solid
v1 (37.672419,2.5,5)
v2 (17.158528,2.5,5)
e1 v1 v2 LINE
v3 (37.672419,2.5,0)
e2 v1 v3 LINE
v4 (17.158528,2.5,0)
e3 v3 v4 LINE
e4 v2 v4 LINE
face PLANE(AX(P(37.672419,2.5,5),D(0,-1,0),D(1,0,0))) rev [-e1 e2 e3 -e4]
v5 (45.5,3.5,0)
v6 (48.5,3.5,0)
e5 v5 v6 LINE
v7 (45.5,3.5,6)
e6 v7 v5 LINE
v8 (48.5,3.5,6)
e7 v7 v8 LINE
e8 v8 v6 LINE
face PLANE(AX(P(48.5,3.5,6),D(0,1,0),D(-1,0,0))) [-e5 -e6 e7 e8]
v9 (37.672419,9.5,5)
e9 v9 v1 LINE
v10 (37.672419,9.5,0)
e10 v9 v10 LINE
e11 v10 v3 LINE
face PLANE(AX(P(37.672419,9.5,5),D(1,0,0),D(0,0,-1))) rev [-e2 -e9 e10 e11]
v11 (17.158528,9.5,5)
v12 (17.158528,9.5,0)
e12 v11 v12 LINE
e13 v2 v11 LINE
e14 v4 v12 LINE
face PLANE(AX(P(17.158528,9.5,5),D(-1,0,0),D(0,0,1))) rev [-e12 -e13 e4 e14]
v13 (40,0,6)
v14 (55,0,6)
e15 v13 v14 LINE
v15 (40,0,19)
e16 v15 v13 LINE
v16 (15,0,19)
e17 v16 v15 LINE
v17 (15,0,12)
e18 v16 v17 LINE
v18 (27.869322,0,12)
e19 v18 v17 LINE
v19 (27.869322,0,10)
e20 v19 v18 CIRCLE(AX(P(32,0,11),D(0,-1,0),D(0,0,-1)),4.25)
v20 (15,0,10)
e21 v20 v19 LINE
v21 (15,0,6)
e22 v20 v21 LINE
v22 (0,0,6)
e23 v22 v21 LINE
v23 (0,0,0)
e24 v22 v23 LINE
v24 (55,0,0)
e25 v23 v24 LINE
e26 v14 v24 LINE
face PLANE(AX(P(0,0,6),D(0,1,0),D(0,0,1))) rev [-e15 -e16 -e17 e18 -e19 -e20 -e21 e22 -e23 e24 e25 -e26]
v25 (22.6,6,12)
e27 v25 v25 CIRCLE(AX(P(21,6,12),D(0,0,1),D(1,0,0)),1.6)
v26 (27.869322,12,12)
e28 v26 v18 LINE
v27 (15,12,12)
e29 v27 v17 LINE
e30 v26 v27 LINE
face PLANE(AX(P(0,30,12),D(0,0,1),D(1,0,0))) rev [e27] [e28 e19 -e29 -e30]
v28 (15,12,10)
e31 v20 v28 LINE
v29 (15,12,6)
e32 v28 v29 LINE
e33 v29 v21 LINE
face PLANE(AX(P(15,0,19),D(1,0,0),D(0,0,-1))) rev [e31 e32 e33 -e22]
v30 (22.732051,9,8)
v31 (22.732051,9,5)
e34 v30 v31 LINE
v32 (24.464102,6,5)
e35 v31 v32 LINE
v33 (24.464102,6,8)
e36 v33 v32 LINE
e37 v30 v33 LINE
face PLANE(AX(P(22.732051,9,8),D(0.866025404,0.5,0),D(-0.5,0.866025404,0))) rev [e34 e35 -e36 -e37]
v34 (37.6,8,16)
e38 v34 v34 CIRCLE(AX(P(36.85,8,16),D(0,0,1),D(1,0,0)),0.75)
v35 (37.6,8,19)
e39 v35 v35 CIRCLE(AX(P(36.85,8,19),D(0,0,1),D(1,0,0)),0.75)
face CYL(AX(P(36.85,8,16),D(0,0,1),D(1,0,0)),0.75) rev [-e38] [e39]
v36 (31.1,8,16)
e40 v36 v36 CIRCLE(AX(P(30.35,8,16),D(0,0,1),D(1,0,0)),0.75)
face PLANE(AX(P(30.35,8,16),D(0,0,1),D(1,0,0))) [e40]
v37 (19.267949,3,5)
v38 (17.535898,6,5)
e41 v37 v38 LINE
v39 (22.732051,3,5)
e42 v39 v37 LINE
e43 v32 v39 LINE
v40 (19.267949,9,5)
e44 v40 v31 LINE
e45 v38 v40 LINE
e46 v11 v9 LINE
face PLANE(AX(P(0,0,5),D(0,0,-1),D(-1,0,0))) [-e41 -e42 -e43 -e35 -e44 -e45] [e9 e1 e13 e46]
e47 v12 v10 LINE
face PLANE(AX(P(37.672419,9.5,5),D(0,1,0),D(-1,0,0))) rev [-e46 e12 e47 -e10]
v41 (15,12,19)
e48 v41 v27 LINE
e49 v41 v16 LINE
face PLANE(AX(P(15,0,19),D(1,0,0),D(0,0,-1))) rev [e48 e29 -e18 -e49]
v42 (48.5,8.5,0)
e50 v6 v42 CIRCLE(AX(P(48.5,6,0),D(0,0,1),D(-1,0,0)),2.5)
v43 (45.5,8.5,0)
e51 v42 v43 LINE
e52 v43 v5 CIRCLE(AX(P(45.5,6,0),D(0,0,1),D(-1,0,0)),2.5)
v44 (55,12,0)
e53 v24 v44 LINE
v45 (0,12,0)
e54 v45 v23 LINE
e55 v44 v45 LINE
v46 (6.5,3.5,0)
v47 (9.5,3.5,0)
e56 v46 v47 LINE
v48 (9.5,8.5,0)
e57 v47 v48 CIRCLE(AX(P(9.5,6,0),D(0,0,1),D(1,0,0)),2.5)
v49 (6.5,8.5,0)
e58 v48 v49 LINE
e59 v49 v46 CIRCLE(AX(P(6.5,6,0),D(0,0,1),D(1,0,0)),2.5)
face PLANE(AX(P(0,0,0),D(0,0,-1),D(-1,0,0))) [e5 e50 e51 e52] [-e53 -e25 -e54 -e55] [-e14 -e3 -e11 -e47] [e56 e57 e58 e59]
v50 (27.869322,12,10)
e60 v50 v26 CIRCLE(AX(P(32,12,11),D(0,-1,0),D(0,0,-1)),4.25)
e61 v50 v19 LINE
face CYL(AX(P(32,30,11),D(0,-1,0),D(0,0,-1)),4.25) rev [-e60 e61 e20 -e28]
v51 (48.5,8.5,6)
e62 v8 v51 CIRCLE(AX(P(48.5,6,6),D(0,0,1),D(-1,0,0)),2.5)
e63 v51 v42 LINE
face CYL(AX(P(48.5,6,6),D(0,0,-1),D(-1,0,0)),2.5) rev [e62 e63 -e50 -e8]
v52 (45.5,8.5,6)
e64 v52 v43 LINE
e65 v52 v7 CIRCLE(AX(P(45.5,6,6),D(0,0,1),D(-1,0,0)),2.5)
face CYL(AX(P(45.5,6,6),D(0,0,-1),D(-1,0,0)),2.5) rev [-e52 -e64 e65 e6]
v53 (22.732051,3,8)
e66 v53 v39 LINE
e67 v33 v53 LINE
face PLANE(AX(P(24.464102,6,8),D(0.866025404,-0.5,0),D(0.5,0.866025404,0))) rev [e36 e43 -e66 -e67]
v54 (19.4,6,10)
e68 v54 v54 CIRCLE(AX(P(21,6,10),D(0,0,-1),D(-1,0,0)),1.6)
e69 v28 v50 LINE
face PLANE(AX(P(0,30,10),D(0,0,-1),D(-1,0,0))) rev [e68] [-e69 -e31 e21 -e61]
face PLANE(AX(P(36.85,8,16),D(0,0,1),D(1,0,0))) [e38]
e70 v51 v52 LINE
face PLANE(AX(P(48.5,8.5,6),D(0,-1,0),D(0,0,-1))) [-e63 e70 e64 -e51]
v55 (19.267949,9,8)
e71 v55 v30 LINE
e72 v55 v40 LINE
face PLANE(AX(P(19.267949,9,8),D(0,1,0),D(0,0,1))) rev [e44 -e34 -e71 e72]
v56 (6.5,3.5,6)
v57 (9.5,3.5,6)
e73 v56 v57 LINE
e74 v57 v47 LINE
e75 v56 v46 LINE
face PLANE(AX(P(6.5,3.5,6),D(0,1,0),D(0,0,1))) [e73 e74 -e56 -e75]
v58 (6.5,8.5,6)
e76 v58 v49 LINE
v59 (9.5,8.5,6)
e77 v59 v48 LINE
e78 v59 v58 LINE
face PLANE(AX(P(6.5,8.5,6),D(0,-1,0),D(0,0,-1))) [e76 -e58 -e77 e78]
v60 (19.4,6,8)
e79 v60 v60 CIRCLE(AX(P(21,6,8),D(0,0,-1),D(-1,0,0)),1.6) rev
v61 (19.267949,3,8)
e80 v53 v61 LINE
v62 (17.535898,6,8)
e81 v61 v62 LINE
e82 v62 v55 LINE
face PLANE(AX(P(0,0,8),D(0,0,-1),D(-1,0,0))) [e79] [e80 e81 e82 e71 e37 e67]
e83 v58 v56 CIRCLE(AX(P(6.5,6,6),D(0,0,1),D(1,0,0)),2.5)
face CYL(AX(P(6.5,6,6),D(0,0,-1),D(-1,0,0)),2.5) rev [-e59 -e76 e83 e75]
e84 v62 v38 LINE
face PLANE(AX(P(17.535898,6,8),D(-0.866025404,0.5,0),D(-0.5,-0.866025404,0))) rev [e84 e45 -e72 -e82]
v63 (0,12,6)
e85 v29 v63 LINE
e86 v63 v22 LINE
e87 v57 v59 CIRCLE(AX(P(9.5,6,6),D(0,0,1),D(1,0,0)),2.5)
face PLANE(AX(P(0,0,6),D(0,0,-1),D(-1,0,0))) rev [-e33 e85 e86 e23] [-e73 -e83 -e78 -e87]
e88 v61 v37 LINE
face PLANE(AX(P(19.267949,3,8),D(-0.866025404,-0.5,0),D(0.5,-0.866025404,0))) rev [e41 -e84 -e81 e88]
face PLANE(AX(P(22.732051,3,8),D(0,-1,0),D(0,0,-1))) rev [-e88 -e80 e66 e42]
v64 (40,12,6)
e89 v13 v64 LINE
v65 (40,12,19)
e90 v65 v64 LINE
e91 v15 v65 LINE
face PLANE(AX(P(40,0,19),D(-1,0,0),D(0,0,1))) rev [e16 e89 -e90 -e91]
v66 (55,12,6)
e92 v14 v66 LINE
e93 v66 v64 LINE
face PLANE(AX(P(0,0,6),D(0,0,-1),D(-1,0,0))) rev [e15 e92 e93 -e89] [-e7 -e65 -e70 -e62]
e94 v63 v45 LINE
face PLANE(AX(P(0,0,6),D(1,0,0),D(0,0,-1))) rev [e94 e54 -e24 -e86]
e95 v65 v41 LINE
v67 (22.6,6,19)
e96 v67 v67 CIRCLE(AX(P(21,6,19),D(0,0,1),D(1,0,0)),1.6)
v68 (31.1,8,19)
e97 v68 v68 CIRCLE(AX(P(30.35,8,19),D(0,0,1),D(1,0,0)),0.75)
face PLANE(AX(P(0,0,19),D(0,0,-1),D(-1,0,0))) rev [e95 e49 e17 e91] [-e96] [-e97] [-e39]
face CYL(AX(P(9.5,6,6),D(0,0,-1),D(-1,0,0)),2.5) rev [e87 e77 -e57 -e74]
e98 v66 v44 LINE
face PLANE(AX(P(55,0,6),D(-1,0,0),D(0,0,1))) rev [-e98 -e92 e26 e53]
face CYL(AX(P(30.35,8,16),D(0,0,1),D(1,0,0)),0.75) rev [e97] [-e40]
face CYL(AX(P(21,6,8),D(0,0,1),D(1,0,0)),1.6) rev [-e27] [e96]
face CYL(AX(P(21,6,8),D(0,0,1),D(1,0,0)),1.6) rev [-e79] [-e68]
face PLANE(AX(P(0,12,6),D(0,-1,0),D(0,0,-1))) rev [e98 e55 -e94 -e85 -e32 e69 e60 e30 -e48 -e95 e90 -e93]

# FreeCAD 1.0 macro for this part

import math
import FreeCAD as App
import Part
import Sketcher
from FreeCAD import Vector
Q = App.Units.Quantity

doc = App.newDocument("Part")
params = doc.addObject("Spreadsheet::Sheet", "Params")
for row, (alias, value) in enumerate([
    ("sketch1_radius", "2.5 mm"),
    ("sketch1_width", "55 mm"),
    ("sketch1_width2", "3 mm"),
    ("sketch1_height", "12 mm"),
    ("pad1_length", "6 mm"),
    ("sketch2_width", "25 mm"),
    ("sketch2_height", "12 mm"),
    ("pad2_length", "13 mm"),
    ("sketch3_height", "2 mm"),
    ("sketch3_radius", "4.25 mm"),
    ("pocket1_length", "30 mm"),
    ("sketch4_height", "7 mm"),
    ("pocket2_length", "5 mm"),
    ("sketch5_diameter", "3.2 mm"),
    ("pocket3_length", "11 mm"),
    ("pocket4_length", "3 mm"),
    ("sketch7_diameter", "1.5 mm"),
    ("pocket5_length", "3 mm"),
], start=1):
    params.set(f"A{row}", alias)
    params.set(f"B{row}", "=" + value)
    params.setAlias(f"B{row}", alias)

body = doc.addObject("PartDesign::Body", "Body")

sketch1 = body.newObject("Sketcher::SketchObject", "Sketch")
sketch1.AttachmentSupport = (doc.getObject("XY_Plane"), [""])
sketch1.MapMode = "FlatFace"
sketch1.addGeometry(Part.LineSegment(Vector(0, 12, 0), Vector(0, 0, 0)), False)
sketch1.addGeometry(Part.LineSegment(Vector(0, 0, 0), Vector(55, 0, 0)), False)
sketch1.addGeometry(Part.LineSegment(Vector(55, 0, 0), Vector(55, 12, 0)), False)
sketch1.addGeometry(Part.LineSegment(Vector(55, 12, 0), Vector(0, 12, 0)), False)
sketch1.addGeometry(Part.ArcOfCircle(Part.Circle(Vector(6.5, 6, 0), Vector(0, 0, 1), 2.5), math.radians(90), math.radians(270)), False)
sketch1.addGeometry(Part.LineSegment(Vector(6.5, 8.5, 0), Vector(9.5, 8.5, 0)), False)
sketch1.addGeometry(Part.ArcOfCircle(Part.Circle(Vector(9.5, 6, 0), Vector(0, 0, 1), 2.5), math.radians(-90), math.radians(90)), False)
sketch1.addGeometry(Part.LineSegment(Vector(9.5, 3.5, 0), Vector(6.5, 3.5, 0)), False)
sketch1.addGeometry(Part.LineSegment(Vector(45.5, 8.5, 0), Vector(48.5, 8.5, 0)), False)
sketch1.addGeometry(Part.ArcOfCircle(Part.Circle(Vector(48.5, 6, 0), Vector(0, 0, 1), 2.5), math.radians(-90), math.radians(90)), False)
sketch1.addGeometry(Part.LineSegment(Vector(48.5, 3.5, 0), Vector(45.5, 3.5, 0)), False)
sketch1.addGeometry(Part.ArcOfCircle(Part.Circle(Vector(45.5, 6, 0), Vector(0, 0, 1), 2.5), math.radians(90), math.radians(270)), False)
sketch1.addConstraint(Sketcher.Constraint("Coincident", 0, 2, 1, 1))
sketch1.addConstraint(Sketcher.Constraint("Coincident", 1, 2, 2, 1))
sketch1.addConstraint(Sketcher.Constraint("Coincident", 2, 2, 3, 1))
sketch1.addConstraint(Sketcher.Constraint("Coincident", 3, 2, 0, 1))
sketch1.addConstraint(Sketcher.Constraint("Tangent", 4, 1, 5, 1))
sketch1.addConstraint(Sketcher.Constraint("Tangent", 5, 2, 6, 2))
sketch1.addConstraint(Sketcher.Constraint("Tangent", 6, 1, 7, 1))
sketch1.addConstraint(Sketcher.Constraint("Tangent", 7, 2, 4, 2))
sketch1.addConstraint(Sketcher.Constraint("Tangent", 8, 2, 9, 2))
sketch1.addConstraint(Sketcher.Constraint("Tangent", 9, 1, 10, 1))
sketch1.addConstraint(Sketcher.Constraint("Tangent", 10, 2, 11, 2))
sketch1.addConstraint(Sketcher.Constraint("Tangent", 11, 1, 8, 1))
sketch1.addConstraint(Sketcher.Constraint("Vertical", 0))
sketch1.addConstraint(Sketcher.Constraint("Horizontal", 1))
sketch1.addConstraint(Sketcher.Constraint("Vertical", 2))
sketch1.addConstraint(Sketcher.Constraint("Horizontal", 3))
sketch1.addConstraint(Sketcher.Constraint("Horizontal", 5))
sketch1.addConstraint(Sketcher.Constraint("Horizontal", 7))
sketch1.addConstraint(Sketcher.Constraint("Horizontal", 8))
sketch1.addConstraint(Sketcher.Constraint("Horizontal", 10))
sketch1.addConstraint(Sketcher.Constraint("Coincident", 0, 2, -1, 1))
sketch1.addConstraint(Sketcher.Constraint("Equal", 6, 9))
sketch1.addConstraint(Sketcher.Constraint("Horizontal", 6, 3, 9, 3))
sketch1.addConstraint(Sketcher.Constraint("Equal", 7, 8))
sketch1.addConstraint(Sketcher.Constraint("Radius", 4, 2.5))
sketch1.addConstraint(Sketcher.Constraint("DistanceX", 1, 1, 1, 2, 55.0))
sketch1.addConstraint(Sketcher.Constraint("DistanceX", 5, 1, 5, 2, 3.0))
sketch1.addConstraint(Sketcher.Constraint("DistanceY", 0, 2, 0, 1, 12.0))
sketch1.addConstraint(Sketcher.Constraint("DistanceY", -1, 1, 4, 3, 6.0))
sketch1.addConstraint(Sketcher.Constraint("DistanceX", 6, 3, 9, 3, 39.0))
sketch1.addConstraint(Sketcher.Constraint("DistanceX", -1, 1, 4, 3, 6.5))
sketch1.setExpression("Constraints[24]", "Params.sketch1_radius")
sketch1.setExpression("Constraints[25]", "Params.sketch1_width")
sketch1.setExpression("Constraints[26]", "Params.sketch1_width2")
sketch1.setExpression("Constraints[27]", "Params.sketch1_height")
pad1 = body.newObject("PartDesign::Pad", "Pad")
pad1.Profile = sketch1
pad1.setExpression("Length", "Params.pad1_length")

sketch2 = body.newObject("Sketcher::SketchObject", "Sketch001")
sketch2.AttachmentSupport = (doc.getObject("XY_Plane"), [""])
sketch2.MapMode = "FlatFace"
sketch2.AttachmentOffset = App.Placement(Vector(0, 0, 6), App.Rotation())
sketch2.addGeometry(Part.LineSegment(Vector(15, 12, 0), Vector(15, 0, 0)), False)
sketch2.addGeometry(Part.LineSegment(Vector(15, 0, 0), Vector(40, 0, 0)), False)
sketch2.addGeometry(Part.LineSegment(Vector(40, 0, 0), Vector(40, 12, 0)), False)
sketch2.addGeometry(Part.LineSegment(Vector(40, 12, 0), Vector(15, 12, 0)), False)
sketch2.addConstraint(Sketcher.Constraint("Coincident", 0, 2, 1, 1))
sketch2.addConstraint(Sketcher.Constraint("Coincident", 1, 2, 2, 1))
sketch2.addConstraint(Sketcher.Constraint("Coincident", 2, 2, 3, 1))
sketch2.addConstraint(Sketcher.Constraint("Coincident", 3, 2, 0, 1))
sketch2.addConstraint(Sketcher.Constraint("Vertical", 0))
sketch2.addConstraint(Sketcher.Constraint("Horizontal", 1))
sketch2.addConstraint(Sketcher.Constraint("Vertical", 2))
sketch2.addConstraint(Sketcher.Constraint("Horizontal", 3))
sketch2.addConstraint(Sketcher.Constraint("PointOnObject", 0, 2, -1))
sketch2.addConstraint(Sketcher.Constraint("DistanceX", 1, 1, 1, 2, 25.0))
sketch2.addConstraint(Sketcher.Constraint("DistanceY", 0, 2, 0, 1, 12.0))
sketch2.addConstraint(Sketcher.Constraint("DistanceX", -1, 1, 0, 2, 15.0))
sketch2.setExpression("Constraints[9]", "Params.sketch2_width")
sketch2.setExpression("Constraints[10]", "Params.sketch2_height")
pad2 = body.newObject("PartDesign::Pad", "Pad001")
pad2.Profile = sketch2
pad2.setExpression("Length", "Params.pad2_length")

sketch3 = body.newObject("Sketcher::SketchObject", "Sketch002")
sketch3.AttachmentSupport = (doc.getObject("XZ_Plane"), [""])
sketch3.MapMode = "FlatFace"
sketch3.addGeometry(Part.LineSegment(Vector(27.9, 12, 0), Vector(15, 12, 0)), False)
sketch3.addGeometry(Part.LineSegment(Vector(15, 12, 0), Vector(15, 10, 0)), False)
sketch3.addGeometry(Part.LineSegment(Vector(15, 10, 0), Vector(27.9, 10, 0)), False)
sketch3.addGeometry(Part.ArcOfCircle(Part.Circle(Vector(32, 11, 0), Vector(0, 0, 1), 4.2), math.radians(-166), math.radians(166)), False)
sketch3.addConstraint(Sketcher.Constraint("Coincident", 0, 2, 1, 1))
sketch3.addConstraint(Sketcher.Constraint("Coincident", 1, 2, 2, 1))
sketch3.addConstraint(Sketcher.Constraint("Coincident", 2, 2, 3, 1))
sketch3.addConstraint(Sketcher.Constraint("Coincident", 3, 2, 0, 1))
sketch3.addConstraint(Sketcher.Constraint("Horizontal", 0))
sketch3.addConstraint(Sketcher.Constraint("Vertical", 1))
sketch3.addConstraint(Sketcher.Constraint("Horizontal", 2))
sketch3.addConstraint(Sketcher.Constraint("Vertical", 2, 2, 3, 2))
sketch3.addConstraint(Sketcher.Constraint("DistanceY", 1, 2, 1, 1, 2.0))
sketch3.addConstraint(Sketcher.Constraint("Radius", 3, 4.25))
sketch3.addConstraint(Sketcher.Constraint("DistanceX", -1, 1, 3, 3, 32.0))
sketch3.addConstraint(Sketcher.Constraint("DistanceY", -1, 1, 3, 3, 11.0))
sketch3.addConstraint(Sketcher.Constraint("DistanceX", -1, 1, 0, 2, 15.0))
sketch3.setExpression("Constraints[8]", "Params.sketch3_height")
sketch3.setExpression("Constraints[9]", "Params.sketch3_radius")
pocket1 = body.newObject("PartDesign::Pocket", "Pocket")
pocket1.Profile = sketch3
pocket1.setExpression("Length", "Params.pocket1_length")

sketch4 = body.newObject("Sketcher::SketchObject", "Sketch003")
sketch4.AttachmentSupport = (doc.getObject("XY_Plane"), [""])
sketch4.MapMode = "FlatFace"
sketch4.addGeometry(Part.LineSegment(Vector(38, 10, 0), Vector(38, 2, 0)), False)
sketch4.addGeometry(Part.LineSegment(Vector(38, 2, 0), Vector(17, 2, 0)), False)
sketch4.addGeometry(Part.LineSegment(Vector(17, 2, 0), Vector(17, 10, 0)), False)
sketch4.addGeometry(Part.LineSegment(Vector(17, 10, 0), Vector(38, 10, 0)), False)
sketch4.addConstraint(Sketcher.Constraint("Coincident", 0, 2, 1, 1))
sketch4.addConstraint(Sketcher.Constraint("Coincident", 1, 2, 2, 1))
sketch4.addConstraint(Sketcher.Constraint("Coincident", 2, 2, 3, 1))
sketch4.addConstraint(Sketcher.Constraint("Coincident", 3, 2, 0, 1))
sketch4.addConstraint(Sketcher.Constraint("Vertical", 0))
sketch4.addConstraint(Sketcher.Constraint("Horizontal", 1))
sketch4.addConstraint(Sketcher.Constraint("Vertical", 2))
sketch4.addConstraint(Sketcher.Constraint("Horizontal", 3))
sketch4.addConstraint(Sketcher.Constraint("DistanceY", 0, 2, 0, 1, 7.0))
sketch4.addConstraint(Sketcher.Constraint("DistanceY", -1, 1, 0, 2, 2.5))
sketch4.addConstraint(Sketcher.Constraint("DistanceX", 1, 2, 1, 1, 20.513891))
sketch4.addConstraint(Sketcher.Constraint("DistanceX", -1, 1, 0, 2, 37.672419))
sketch4.setExpression("Constraints[8]", "Params.sketch4_height")
pocket2 = body.newObject("PartDesign::Pocket", "Pocket001")
pocket2.Profile = sketch4
pocket2.setExpression("Length", "Params.pocket2_length")
pocket2.Reversed = True

sketch5 = body.newObject("Sketcher::SketchObject", "Sketch004")
sketch5.AttachmentSupport = (doc.getObject("XY_Plane"), [""])
sketch5.MapMode = "FlatFace"
sketch5.AttachmentOffset = App.Placement(Vector(0, 0, 19), App.Rotation())
sketch5.addGeometry(Part.Circle(Vector(21, 6, 0), Vector(0, 0, 1), 1.6), False)
sketch5.addConstraint(Sketcher.Constraint("Diameter", 0, 3.2))
sketch5.addConstraint(Sketcher.Constraint("DistanceX", -1, 1, 0, 3, 21.0))
sketch5.addConstraint(Sketcher.Constraint("DistanceY", -1, 1, 0, 3, 6.0))
sketch5.setExpression("Constraints[0]", "Params.sketch5_diameter")
pocket3 = body.newObject("PartDesign::Pocket", "Pocket002")
pocket3.Profile = sketch5
pocket3.setExpression("Length", "Params.pocket3_length")

sketch6 = body.newObject("Sketcher::SketchObject", "Sketch005")
sketch6.AttachmentSupport = (doc.getObject("XY_Plane"), [""])
sketch6.MapMode = "FlatFace"
sketch6.AttachmentOffset = App.Placement(Vector(0, 0, 5), App.Rotation())
sketch6.addGeometry(Part.LineSegment(Vector(17.5, 6, 0), Vector(19.3, 9, 0)), False)
sketch6.addGeometry(Part.LineSegment(Vector(19.3, 9, 0), Vector(22.7, 9, 0)), False)
sketch6.addGeometry(Part.LineSegment(Vector(22.7, 9, 0), Vector(24.5, 6, 0)), False)
sketch6.addGeometry(Part.LineSegment(Vector(24.5, 6, 0), Vector(22.7, 3, 0)), False)
sketch6.addGeometry(Part.LineSegment(Vector(22.7, 3, 0), Vector(19.3, 3, 0)), False)
sketch6.addGeometry(Part.LineSegment(Vector(19.3, 3, 0), Vector(17.5, 6, 0)), False)
sketch6.addConstraint(Sketcher.Constraint("Coincident", 0, 2, 1, 1))
sketch6.addConstraint(Sketcher.Constraint("Coincident", 1, 2, 2, 1))
sketch6.addConstraint(Sketcher.Constraint("Coincident", 2, 2, 3, 1))
sketch6.addConstraint(Sketcher.Constraint("Coincident", 3, 2, 4, 1))
sketch6.addConstraint(Sketcher.Constraint("Coincident", 4, 2, 5, 1))
sketch6.addConstraint(Sketcher.Constraint("Coincident", 5, 2, 0, 1))
sketch6.addConstraint(Sketcher.Constraint("Horizontal", 1))
sketch6.addConstraint(Sketcher.Constraint("Horizontal", 4))
sketch6.addConstraint(Sketcher.Constraint("Parallel", 0, 3))
sketch6.addConstraint(Sketcher.Constraint("Parallel", 2, 5))
sketch6.addConstraint(Sketcher.Constraint("Horizontal", 2, 2, 5, 2))
sketch6.addConstraint(Sketcher.Constraint("Vertical", 1, 2, 3, 2))
sketch6.addConstraint(Sketcher.Constraint("Vertical", 0, 2, 4, 2))
sketch6.addConstraint(Sketcher.Constraint("Angle", 0, Q("60 deg")))
sketch6.addConstraint(Sketcher.Constraint("DistanceY", -1, 1, 0, 2, 9.0))
sketch6.addConstraint(Sketcher.Constraint("DistanceY", -1, 1, 2, 2, 6.0))
sketch6.addConstraint(Sketcher.Constraint("DistanceX", 1, 1, 1, 2, 3.464102))
sketch6.addConstraint(Sketcher.Constraint("DistanceX", -1, 1, 2, 2, 24.464102))
pocket4 = body.newObject("PartDesign::Pocket", "Pocket003")
pocket4.Profile = sketch6
pocket4.setExpression("Length", "Params.pocket4_length")
pocket4.Reversed = True

sketch7 = body.newObject("Sketcher::SketchObject", "Sketch006")
sketch7.AttachmentSupport = (doc.getObject("XY_Plane"), [""])
sketch7.MapMode = "FlatFace"
sketch7.AttachmentOffset = App.Placement(Vector(0, 0, 19), App.Rotation())
sketch7.addGeometry(Part.Circle(Vector(36.9, 8, 0), Vector(0, 0, 1), 0.8), False)
sketch7.addGeometry(Part.Circle(Vector(30.4, 8, 0), Vector(0, 0, 1), 0.8), False)
sketch7.addConstraint(Sketcher.Constraint("Equal", 0, 1))
sketch7.addConstraint(Sketcher.Constraint("Horizontal", 0, 3, 1, 3))
sketch7.addConstraint(Sketcher.Constraint("Diameter", 0, 1.5))
sketch7.addConstraint(Sketcher.Constraint("DistanceY", -1, 1, 0, 3, 8.0))
sketch7.addConstraint(Sketcher.Constraint("DistanceX", 1, 3, 0, 3, 6.5))
sketch7.addConstraint(Sketcher.Constraint("DistanceX", -1, 1, 0, 3, 36.85))
sketch7.setExpression("Constraints[2]", "Params.sketch7_diameter")
pocket5 = body.newObject("PartDesign::Pocket", "Pocket004")
pocket5.Profile = sketch7
pocket5.setExpression("Length", "Params.pocket5_length")

doc.recompute()
